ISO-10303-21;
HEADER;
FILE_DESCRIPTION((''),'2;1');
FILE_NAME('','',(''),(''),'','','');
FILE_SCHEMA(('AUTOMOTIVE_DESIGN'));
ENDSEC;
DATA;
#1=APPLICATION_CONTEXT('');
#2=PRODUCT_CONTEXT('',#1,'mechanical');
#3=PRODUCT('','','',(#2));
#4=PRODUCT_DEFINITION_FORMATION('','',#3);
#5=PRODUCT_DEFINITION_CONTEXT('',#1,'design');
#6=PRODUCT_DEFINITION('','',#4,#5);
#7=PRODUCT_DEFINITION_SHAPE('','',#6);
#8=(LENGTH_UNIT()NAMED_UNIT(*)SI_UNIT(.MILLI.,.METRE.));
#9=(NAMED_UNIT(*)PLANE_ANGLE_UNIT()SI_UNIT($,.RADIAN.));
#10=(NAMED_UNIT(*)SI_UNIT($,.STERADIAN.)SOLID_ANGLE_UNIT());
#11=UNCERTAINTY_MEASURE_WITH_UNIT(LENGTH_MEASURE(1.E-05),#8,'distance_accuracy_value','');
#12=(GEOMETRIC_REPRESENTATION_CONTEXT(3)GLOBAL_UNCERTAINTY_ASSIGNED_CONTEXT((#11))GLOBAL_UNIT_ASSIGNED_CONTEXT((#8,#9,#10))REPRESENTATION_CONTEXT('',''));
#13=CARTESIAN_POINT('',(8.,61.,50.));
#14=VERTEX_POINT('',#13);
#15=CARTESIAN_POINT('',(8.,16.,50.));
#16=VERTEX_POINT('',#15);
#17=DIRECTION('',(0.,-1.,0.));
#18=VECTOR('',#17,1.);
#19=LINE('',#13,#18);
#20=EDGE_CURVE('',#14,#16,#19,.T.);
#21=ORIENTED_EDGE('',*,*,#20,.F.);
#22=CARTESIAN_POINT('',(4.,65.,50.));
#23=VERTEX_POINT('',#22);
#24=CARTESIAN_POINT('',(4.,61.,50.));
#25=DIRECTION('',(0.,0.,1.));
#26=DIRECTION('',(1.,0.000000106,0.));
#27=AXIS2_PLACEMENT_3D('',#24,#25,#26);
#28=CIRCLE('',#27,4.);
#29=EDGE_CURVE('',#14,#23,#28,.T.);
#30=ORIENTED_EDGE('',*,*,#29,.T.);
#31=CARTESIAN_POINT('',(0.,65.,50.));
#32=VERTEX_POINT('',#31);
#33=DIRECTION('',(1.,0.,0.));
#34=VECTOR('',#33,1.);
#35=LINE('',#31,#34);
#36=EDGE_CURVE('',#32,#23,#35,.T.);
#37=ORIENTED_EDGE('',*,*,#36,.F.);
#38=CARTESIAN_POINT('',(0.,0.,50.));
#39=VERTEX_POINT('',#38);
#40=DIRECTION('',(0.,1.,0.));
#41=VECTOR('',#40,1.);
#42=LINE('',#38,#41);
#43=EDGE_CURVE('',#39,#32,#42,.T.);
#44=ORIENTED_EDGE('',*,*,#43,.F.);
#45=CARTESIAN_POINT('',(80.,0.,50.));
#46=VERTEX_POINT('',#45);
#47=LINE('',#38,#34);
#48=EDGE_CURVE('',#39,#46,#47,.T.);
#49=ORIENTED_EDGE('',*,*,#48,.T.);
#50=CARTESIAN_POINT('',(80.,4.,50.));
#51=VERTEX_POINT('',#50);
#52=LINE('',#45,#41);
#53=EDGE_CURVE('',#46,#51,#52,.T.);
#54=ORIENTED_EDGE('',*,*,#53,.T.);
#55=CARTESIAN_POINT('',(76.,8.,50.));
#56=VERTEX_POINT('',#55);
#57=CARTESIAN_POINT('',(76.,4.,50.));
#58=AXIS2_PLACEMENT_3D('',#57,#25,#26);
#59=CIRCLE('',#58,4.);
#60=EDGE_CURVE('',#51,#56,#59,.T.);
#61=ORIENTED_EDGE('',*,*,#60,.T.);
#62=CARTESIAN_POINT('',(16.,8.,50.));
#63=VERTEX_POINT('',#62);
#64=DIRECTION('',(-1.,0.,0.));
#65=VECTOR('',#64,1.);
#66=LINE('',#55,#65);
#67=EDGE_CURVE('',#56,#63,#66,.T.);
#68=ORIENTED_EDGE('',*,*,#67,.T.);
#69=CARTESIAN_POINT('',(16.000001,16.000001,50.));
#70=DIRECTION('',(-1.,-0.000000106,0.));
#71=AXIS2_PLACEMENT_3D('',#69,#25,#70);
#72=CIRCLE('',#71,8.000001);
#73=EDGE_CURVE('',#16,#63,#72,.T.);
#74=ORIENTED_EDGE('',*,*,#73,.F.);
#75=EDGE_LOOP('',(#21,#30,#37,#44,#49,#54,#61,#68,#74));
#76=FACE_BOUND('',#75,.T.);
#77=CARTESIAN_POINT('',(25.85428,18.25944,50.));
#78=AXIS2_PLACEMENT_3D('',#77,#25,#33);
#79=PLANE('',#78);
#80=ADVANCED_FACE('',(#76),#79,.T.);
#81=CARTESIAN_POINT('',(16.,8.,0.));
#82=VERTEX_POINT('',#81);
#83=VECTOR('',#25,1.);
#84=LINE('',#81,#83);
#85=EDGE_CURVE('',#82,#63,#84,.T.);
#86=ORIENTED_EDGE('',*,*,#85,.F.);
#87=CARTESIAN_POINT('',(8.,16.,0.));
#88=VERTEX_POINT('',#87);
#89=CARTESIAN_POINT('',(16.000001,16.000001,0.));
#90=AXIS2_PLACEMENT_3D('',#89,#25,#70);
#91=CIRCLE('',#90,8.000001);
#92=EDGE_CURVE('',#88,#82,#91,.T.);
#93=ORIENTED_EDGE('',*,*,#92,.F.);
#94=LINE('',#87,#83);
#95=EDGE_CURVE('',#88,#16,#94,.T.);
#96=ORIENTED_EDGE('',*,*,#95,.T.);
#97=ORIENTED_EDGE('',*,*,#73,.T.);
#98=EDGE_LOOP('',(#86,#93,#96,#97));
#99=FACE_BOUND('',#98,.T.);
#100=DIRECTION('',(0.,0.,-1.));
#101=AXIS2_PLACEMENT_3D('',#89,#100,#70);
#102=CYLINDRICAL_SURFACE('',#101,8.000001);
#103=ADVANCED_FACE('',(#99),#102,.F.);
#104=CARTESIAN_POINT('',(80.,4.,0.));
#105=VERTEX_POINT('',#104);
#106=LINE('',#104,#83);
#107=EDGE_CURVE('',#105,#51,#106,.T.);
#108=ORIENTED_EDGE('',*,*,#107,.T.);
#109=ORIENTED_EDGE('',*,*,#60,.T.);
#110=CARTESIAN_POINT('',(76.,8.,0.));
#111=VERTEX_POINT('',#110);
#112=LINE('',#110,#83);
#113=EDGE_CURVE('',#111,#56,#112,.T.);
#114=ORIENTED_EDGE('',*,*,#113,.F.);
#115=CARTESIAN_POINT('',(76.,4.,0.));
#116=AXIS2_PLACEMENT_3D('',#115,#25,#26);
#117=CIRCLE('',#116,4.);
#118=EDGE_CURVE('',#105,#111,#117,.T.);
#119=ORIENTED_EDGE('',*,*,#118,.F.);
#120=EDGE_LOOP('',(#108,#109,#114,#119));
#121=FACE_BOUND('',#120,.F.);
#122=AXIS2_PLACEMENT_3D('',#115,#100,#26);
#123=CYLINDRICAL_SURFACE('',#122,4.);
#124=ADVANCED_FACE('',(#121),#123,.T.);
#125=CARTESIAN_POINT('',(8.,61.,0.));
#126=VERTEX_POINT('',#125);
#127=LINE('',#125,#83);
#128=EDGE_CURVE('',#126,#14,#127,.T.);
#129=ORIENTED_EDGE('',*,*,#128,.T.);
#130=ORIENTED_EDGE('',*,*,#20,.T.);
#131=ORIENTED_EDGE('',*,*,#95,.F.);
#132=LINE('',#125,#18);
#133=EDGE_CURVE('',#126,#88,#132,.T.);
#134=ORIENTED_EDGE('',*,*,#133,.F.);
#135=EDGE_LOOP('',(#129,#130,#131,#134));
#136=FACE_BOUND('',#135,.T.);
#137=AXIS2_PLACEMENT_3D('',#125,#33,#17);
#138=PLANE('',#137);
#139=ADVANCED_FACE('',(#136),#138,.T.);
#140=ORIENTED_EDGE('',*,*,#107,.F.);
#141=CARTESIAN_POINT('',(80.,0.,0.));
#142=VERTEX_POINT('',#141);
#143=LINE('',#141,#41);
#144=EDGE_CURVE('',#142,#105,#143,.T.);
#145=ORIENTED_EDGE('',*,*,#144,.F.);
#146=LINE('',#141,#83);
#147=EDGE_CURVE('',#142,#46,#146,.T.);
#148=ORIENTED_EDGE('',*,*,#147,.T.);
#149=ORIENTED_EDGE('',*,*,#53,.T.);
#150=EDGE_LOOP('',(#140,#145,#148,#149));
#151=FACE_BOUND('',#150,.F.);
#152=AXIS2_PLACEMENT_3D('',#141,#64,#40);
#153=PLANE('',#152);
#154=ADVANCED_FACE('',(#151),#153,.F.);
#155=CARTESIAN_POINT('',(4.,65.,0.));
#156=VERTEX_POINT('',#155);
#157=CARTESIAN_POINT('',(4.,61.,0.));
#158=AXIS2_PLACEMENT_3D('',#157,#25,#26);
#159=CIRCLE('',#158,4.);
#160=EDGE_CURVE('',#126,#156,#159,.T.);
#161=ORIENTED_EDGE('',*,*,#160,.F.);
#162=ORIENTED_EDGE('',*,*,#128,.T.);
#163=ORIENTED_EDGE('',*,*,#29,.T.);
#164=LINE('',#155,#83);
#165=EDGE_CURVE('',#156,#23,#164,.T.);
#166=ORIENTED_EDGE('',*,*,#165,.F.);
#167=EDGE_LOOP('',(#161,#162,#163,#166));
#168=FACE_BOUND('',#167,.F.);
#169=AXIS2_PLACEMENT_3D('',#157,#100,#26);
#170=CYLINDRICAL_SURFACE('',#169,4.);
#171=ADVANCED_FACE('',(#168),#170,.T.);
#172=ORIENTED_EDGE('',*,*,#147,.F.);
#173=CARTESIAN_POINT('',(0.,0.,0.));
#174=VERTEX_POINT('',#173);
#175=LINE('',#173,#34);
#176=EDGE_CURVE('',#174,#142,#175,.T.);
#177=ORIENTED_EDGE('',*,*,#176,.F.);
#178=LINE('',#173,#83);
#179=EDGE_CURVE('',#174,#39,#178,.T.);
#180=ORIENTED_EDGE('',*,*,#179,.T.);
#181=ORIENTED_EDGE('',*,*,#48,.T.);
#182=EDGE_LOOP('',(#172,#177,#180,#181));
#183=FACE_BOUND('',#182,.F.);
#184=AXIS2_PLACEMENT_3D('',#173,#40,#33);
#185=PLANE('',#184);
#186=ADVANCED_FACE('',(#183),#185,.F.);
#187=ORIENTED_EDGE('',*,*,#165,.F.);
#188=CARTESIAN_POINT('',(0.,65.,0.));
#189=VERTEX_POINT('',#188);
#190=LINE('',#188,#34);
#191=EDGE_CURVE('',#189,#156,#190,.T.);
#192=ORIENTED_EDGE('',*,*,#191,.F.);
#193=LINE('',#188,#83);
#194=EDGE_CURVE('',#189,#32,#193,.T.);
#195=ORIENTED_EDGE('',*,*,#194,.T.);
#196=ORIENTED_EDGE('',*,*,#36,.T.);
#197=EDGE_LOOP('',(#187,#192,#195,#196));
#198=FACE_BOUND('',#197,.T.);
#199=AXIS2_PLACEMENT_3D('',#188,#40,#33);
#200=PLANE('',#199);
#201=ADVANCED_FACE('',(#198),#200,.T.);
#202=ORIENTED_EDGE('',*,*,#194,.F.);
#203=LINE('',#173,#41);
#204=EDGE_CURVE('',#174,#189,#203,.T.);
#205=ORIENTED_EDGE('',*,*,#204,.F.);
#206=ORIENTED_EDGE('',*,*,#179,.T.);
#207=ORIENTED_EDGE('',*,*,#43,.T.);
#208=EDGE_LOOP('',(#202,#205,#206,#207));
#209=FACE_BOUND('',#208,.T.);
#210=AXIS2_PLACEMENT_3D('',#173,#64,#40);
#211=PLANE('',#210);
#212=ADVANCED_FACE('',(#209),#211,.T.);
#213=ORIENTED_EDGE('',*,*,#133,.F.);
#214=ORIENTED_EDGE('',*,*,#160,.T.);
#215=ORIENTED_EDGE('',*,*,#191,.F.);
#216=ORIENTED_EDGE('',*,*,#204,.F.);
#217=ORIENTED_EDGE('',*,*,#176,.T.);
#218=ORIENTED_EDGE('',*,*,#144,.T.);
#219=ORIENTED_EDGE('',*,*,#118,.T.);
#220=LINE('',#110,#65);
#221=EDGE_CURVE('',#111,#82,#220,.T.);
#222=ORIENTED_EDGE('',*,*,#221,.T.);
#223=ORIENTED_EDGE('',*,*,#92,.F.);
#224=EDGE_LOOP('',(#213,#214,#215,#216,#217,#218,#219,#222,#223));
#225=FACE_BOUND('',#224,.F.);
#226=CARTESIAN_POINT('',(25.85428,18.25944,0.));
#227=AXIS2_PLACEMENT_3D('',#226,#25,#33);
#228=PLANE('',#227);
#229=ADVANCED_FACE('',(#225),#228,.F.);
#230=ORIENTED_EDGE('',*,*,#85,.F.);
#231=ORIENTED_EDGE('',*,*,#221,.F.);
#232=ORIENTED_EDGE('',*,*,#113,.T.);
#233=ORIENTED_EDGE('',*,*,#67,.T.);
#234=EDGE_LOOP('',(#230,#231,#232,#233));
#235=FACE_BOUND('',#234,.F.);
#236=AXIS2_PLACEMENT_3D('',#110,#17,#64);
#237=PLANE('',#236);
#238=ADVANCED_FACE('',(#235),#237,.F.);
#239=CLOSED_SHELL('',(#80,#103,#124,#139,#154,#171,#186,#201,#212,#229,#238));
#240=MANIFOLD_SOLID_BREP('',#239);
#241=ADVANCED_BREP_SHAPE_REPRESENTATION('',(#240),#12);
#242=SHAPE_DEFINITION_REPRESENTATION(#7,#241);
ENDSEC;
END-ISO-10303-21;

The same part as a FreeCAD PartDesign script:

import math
import FreeCAD as App
import Part
import Sketcher

V = App.Vector
Q = App.Units.Quantity

doc = App.newDocument("Part")
params = doc.addObject("Spreadsheet::Sheet", "Params")
for row, (alias, value) in enumerate([
    ("sketch1_radius", "4 mm"),
    ("sketch1_radius2", "8.000001 mm"),
    ("sketch1_width", "80 mm"),
    ("sketch1_width2", "60 mm"),
    ("sketch1_height", "45 mm"),
    ("pad1_length", "50 mm"),
], start=1):
    params.set(f"A{row}", alias)
    params.set(f"B{row}", "=" + value)
    params.setAlias(f"B{row}", alias)

body = doc.addObject("PartDesign::Body", "Body")

# Sketch on XY plane
sketch1 = body.newObject("Sketcher::SketchObject", "Sketch")
sketch1.AttachmentSupport = (doc.getObject("XY_Plane"), [""])
sketch1.MapMode = "FlatFace"
sketch1.addGeometry([
    Part.LineSegment(V(0, 0, 0), V(80, 0, 0)),  # 0
    Part.LineSegment(V(80, 0, 0), V(80, 4, 0)),  # 1
    Part.ArcOfCircle(Part.Circle(V(76, 4, 0), V(0, 0, 1), 4), math.radians(0), math.radians(90)),  # 2
    Part.LineSegment(V(76, 8, 0), V(16, 8, 0)),  # 3
    Part.ArcOfCircle(Part.Circle(V(16, 16, 0), V(0, 0, 1), 8), math.radians(-180), math.radians(-90)),  # 4
    Part.LineSegment(V(8, 16, 0), V(8, 61, 0)),  # 5
    Part.ArcOfCircle(Part.Circle(V(4, 61, 0), V(0, 0, 1), 4), math.radians(0), math.radians(90)),  # 6
    Part.LineSegment(V(4, 65, 0), V(0, 65, 0)),  # 7
    Part.LineSegment(V(0, 65, 0), V(0, 0, 0)),  # 8
], False)
sketch1.addConstraint([
    Sketcher.Constraint("Coincident", 0, 2, 1, 1),
    Sketcher.Constraint("Tangent", 1, 2, 2, 1),
    Sketcher.Constraint("Tangent", 2, 2, 3, 1),
    Sketcher.Constraint("Tangent", 3, 2, 4, 2),
    Sketcher.Constraint("Tangent", 4, 1, 5, 1),
    Sketcher.Constraint("Tangent", 5, 2, 6, 1),
    Sketcher.Constraint("Tangent", 6, 2, 7, 1),
    Sketcher.Constraint("Coincident", 7, 2, 8, 1),
    Sketcher.Constraint("Coincident", 8, 2, 0, 1),
    Sketcher.Constraint("Horizontal", 0),
    Sketcher.Constraint("Vertical", 1),
    Sketcher.Constraint("Horizontal", 3),
    Sketcher.Constraint("Vertical", 5),
    Sketcher.Constraint("Horizontal", 7),
    Sketcher.Constraint("Vertical", 8),
    Sketcher.Constraint("Coincident", 8, 2, -1, 1),
    Sketcher.Constraint("Equal", 2, 6),
    Sketcher.Constraint("Equal", 7, 1),
    Sketcher.Constraint("Radius", 2, Q("4 mm")),
    Sketcher.Constraint("Radius", 4, Q("8.000001 mm")),
    Sketcher.Constraint("DistanceX", 0, 1, 0, 2, Q("80 mm")),
    Sketcher.Constraint("DistanceX", 3, 2, 3, 1, Q("60 mm")),
    Sketcher.Constraint("DistanceY", 5, 1, 5, 2, Q("45 mm")),
])
sketch1.setExpression("Constraints[18]", "Params.sketch1_radius")
sketch1.setExpression("Constraints[19]", "Params.sketch1_radius2")
sketch1.setExpression("Constraints[20]", "Params.sketch1_width")
sketch1.setExpression("Constraints[21]", "Params.sketch1_width2")
sketch1.setExpression("Constraints[22]", "Params.sketch1_height")
pad1 = body.newObject("PartDesign::Pad", "Pad")
pad1.Profile = sketch1
pad1.setExpression("Length", "Params.pad1_length")

doc.recompute()
